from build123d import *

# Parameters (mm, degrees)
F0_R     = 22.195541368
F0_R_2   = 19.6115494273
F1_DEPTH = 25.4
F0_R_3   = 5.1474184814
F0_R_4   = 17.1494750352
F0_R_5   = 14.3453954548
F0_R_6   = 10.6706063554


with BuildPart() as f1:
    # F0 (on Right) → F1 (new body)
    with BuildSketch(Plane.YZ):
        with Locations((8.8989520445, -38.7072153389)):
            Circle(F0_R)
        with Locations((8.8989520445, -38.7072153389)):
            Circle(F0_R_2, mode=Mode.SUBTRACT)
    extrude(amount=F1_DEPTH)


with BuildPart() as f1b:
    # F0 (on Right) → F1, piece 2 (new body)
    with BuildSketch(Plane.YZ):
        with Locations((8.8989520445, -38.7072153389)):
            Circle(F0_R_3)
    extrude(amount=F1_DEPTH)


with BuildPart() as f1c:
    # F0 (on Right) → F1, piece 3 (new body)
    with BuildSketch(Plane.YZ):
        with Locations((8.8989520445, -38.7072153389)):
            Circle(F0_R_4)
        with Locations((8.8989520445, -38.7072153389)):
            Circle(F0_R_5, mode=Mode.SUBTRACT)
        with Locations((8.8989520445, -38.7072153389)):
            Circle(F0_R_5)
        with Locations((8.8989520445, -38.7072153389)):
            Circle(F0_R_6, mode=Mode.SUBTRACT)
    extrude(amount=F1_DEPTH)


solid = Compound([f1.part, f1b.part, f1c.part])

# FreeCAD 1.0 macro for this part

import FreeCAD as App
import Part
import Sketcher

V = App.Vector
Q = App.Units.Quantity

doc = App.newDocument("Part")
body = doc.addObject("PartDesign::Body", "Body")

sketch1 = body.newObject("Sketcher::SketchObject", "Sketch")
sketch1.AttachmentSupport = (doc.getObject("YZ_Plane"), [""])
sketch1.MapMode = "FlatFace"
sketch1.addGeometry([
    Part.Circle(V(9, -39, 0), V(0, 0, 1), 22),
    Part.Circle(V(9, -39, 0), V(0, 0, 1), 20),
], False)
sketch1.addConstraint([
    Sketcher.Constraint("Coincident", 1, 3, 0, 3),
    Sketcher.Constraint("Diameter", 1, Q("39.223099 mm")),
    Sketcher.Constraint("Diameter", 0, Q("44.391083 mm")),
    Sketcher.Constraint("DistanceX", -1, 1, 0, 3, Q("8.898952 mm")),
    Sketcher.Constraint("DistanceY", 0, 3, -1, 1, Q("38.707215 mm")),
])
pad1 = body.newObject("PartDesign::Pad", "Pad")
pad1.Profile = sketch1
pad1.Length = Q("1 in")
body2 = doc.addObject("PartDesign::Body", "Body001")

sketch2 = body2.newObject("Sketcher::SketchObject", "Sketch001")
sketch2.AttachmentSupport = (doc.getObject("YZ_Plane001"), [""])
sketch2.MapMode = "FlatFace"
sketch2.addGeometry(Part.Circle(V(9, -39, 0), V(0, 0, 1), 5), False)
sketch2.addConstraint([
    Sketcher.Constraint("Diameter", 0, Q("10.294837 mm")),
    Sketcher.Constraint("DistanceX", -1, 1, 0, 3, Q("8.898952 mm")),
    Sketcher.Constraint("DistanceY", 0, 3, -1, 1, Q("38.707215 mm")),
])
pad2 = body2.newObject("PartDesign::Pad", "Pad001")
pad2.Profile = sketch2
pad2.Length = Q("1 in")
body3 = doc.addObject("PartDesign::Body", "Body002")

sketch3 = body3.newObject("Sketcher::SketchObject", "Sketch002")
sketch3.AttachmentSupport = (doc.getObject("YZ_Plane002"), [""])
sketch3.MapMode = "FlatFace"
sketch3.addGeometry([
    Part.Circle(V(9, -39, 0), V(0, 0, 1), 17),
    Part.Circle(V(9, -39, 0), V(0, 0, 1), 11),
], False)
sketch3.addConstraint([
    Sketcher.Constraint("Coincident", 1, 3, 0, 3),
    Sketcher.Constraint("Diameter", 0, Q("34.29895 mm")),
    Sketcher.Constraint("Diameter", 1, Q("21.341213 mm")),
    Sketcher.Constraint("DistanceX", -1, 1, 0, 3, Q("8.898952 mm")),
    Sketcher.Constraint("DistanceY", 0, 3, -1, 1, Q("38.707215 mm")),
])
pad3 = body3.newObject("PartDesign::Pad", "Pad002")
pad3.Profile = sketch3
pad3.Length = Q("1 in")

doc.recompute()
